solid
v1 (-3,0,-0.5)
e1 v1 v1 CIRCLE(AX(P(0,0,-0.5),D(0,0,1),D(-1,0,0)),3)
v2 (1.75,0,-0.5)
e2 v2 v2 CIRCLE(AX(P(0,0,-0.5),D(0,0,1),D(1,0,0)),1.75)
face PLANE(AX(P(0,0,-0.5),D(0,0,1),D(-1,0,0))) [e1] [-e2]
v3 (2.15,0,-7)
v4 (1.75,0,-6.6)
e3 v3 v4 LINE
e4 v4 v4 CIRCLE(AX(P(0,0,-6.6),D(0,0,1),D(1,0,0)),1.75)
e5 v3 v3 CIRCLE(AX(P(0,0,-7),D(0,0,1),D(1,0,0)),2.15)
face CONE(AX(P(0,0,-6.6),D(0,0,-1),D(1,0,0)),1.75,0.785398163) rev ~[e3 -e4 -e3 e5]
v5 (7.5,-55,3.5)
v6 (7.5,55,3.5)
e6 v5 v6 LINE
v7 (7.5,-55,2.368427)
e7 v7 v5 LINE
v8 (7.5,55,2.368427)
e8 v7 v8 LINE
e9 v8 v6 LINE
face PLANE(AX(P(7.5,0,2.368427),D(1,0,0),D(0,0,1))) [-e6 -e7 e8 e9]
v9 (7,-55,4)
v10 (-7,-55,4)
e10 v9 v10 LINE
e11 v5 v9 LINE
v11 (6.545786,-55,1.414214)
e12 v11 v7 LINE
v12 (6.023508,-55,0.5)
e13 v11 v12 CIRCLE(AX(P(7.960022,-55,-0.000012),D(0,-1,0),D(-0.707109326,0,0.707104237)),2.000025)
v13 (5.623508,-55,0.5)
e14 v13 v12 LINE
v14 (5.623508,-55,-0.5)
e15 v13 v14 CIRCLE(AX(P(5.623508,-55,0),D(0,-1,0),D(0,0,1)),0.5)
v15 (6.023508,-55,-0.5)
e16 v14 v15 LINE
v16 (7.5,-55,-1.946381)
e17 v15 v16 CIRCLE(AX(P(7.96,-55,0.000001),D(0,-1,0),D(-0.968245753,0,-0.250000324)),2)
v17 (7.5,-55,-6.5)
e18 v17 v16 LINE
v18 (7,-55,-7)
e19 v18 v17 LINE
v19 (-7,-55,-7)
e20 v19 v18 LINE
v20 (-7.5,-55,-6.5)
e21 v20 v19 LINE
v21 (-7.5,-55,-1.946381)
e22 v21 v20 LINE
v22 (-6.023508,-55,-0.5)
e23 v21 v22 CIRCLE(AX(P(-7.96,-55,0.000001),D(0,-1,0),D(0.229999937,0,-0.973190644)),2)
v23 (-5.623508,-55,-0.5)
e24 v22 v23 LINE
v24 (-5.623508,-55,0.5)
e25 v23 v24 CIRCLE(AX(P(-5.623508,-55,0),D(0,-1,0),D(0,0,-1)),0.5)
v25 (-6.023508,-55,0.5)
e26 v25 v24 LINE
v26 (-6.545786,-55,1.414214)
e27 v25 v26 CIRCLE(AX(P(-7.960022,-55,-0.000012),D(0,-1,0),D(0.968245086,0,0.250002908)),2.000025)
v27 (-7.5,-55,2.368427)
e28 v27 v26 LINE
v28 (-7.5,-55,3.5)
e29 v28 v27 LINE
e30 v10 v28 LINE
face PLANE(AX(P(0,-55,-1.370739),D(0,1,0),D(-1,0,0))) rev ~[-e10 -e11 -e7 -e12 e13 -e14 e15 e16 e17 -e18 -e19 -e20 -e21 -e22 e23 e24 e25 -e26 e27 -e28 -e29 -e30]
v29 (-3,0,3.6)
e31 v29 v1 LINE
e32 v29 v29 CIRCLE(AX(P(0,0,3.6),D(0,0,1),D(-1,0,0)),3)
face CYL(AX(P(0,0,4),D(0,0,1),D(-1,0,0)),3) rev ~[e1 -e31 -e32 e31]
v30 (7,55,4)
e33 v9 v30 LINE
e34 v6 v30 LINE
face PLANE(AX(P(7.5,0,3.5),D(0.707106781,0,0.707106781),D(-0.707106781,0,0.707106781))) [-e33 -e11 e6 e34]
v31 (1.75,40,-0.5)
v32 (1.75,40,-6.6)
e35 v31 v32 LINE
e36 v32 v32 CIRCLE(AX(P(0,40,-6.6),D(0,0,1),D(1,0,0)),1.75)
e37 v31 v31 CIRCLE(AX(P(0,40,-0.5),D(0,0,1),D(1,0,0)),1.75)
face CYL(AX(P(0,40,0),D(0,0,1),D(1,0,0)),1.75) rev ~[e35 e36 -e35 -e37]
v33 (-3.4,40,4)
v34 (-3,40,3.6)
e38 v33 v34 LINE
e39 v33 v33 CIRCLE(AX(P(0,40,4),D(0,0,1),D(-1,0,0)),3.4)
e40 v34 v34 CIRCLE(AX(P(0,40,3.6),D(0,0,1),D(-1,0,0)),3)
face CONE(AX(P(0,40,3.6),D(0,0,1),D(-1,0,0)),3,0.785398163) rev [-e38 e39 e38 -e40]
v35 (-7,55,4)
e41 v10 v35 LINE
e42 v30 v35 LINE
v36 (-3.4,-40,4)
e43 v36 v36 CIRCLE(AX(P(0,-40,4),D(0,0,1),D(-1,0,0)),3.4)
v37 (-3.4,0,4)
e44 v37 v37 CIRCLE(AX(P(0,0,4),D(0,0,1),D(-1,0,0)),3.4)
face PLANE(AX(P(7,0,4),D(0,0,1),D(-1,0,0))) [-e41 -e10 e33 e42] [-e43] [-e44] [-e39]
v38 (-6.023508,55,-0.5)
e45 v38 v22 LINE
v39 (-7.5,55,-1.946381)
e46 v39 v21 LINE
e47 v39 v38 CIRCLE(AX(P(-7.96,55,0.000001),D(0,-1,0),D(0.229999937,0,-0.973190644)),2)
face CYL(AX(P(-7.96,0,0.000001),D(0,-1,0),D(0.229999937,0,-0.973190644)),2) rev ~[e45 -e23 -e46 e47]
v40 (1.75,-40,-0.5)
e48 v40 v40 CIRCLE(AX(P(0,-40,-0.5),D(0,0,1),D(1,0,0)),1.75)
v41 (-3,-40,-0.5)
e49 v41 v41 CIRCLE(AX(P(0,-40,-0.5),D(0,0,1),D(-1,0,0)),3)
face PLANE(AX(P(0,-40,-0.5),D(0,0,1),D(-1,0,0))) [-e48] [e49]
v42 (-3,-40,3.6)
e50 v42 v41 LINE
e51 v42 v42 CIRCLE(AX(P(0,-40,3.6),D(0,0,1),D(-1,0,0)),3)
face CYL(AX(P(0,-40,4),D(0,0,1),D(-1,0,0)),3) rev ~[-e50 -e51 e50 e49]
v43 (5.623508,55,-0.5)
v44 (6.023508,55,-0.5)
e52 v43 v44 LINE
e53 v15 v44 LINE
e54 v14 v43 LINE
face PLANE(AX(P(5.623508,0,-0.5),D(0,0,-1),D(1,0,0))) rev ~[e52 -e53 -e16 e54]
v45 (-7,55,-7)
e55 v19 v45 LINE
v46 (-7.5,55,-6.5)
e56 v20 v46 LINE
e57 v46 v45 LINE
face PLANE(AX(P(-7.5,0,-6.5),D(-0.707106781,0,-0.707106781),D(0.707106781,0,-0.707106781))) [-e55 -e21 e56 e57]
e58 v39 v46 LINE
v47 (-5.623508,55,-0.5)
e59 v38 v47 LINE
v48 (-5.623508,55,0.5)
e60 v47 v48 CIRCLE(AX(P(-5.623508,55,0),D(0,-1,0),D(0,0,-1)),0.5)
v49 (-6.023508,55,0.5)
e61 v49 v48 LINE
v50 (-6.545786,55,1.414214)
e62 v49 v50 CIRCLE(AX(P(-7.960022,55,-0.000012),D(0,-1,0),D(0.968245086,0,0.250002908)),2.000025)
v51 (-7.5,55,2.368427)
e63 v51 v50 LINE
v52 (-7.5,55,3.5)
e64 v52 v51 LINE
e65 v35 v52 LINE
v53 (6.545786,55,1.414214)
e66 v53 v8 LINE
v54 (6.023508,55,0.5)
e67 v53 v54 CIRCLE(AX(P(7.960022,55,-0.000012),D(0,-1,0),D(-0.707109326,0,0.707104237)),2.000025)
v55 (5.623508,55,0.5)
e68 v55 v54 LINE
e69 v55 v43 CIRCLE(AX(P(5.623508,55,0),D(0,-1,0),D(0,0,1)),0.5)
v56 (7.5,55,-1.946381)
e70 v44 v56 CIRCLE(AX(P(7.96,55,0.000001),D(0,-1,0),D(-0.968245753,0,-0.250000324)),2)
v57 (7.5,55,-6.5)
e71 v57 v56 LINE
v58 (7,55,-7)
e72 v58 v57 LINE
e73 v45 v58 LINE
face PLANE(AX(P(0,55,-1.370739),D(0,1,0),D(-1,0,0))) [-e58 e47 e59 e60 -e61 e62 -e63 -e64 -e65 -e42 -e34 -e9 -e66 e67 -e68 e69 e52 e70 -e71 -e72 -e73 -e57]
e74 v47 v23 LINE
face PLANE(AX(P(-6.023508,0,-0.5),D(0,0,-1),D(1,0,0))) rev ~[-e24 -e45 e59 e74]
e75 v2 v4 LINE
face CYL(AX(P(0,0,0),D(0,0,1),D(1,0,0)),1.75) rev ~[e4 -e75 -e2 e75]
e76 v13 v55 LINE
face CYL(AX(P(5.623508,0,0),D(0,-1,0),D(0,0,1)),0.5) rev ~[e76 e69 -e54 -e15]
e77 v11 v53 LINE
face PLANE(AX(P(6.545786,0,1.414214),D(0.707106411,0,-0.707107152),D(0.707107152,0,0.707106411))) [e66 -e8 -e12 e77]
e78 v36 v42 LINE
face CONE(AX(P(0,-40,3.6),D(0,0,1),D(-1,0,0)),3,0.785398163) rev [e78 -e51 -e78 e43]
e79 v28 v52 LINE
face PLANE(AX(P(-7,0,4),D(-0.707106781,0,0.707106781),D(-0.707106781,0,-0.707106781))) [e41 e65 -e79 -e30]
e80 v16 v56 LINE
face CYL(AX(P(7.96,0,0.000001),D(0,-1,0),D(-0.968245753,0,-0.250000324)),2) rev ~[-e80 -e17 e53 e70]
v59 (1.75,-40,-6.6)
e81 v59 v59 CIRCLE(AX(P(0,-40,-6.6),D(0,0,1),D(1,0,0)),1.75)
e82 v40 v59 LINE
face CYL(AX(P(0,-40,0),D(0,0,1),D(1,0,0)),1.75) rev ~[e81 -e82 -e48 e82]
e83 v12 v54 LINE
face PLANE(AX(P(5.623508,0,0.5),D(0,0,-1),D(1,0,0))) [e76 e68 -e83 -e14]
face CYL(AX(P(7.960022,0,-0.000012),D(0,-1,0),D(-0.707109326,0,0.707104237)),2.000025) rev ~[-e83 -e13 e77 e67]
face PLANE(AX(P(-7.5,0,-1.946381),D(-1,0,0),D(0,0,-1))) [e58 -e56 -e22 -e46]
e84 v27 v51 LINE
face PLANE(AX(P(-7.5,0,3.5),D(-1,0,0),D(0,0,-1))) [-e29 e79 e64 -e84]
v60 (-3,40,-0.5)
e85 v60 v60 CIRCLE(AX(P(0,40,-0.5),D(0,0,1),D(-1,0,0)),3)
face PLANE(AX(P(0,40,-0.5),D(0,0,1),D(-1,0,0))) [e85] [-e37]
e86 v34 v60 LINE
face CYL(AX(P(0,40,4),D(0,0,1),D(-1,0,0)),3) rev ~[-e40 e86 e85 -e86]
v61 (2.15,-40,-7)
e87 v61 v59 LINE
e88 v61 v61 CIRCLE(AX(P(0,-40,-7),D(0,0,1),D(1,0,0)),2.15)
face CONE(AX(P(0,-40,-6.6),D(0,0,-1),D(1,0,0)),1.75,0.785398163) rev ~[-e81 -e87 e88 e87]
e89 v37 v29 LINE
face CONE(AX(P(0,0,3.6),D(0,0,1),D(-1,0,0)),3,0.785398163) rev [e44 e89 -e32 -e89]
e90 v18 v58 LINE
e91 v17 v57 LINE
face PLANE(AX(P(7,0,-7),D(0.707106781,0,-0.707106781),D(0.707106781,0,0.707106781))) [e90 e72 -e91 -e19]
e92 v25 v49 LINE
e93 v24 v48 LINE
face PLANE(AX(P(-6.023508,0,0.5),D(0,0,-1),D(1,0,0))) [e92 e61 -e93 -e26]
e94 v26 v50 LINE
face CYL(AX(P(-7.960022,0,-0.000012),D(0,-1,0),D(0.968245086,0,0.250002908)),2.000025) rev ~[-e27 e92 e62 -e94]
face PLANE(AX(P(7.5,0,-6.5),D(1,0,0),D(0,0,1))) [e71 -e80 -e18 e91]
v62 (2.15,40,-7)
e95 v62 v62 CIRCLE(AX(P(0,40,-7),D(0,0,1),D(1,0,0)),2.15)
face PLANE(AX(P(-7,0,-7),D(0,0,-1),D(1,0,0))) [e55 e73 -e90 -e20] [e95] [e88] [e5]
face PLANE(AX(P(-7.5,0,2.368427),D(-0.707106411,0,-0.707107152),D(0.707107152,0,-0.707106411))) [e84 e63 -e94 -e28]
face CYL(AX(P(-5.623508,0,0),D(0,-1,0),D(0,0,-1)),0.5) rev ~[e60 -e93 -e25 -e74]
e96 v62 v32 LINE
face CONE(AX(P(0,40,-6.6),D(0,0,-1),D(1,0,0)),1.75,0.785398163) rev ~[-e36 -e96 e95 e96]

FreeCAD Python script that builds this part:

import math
import FreeCAD as App
import Part
import Sketcher

V = App.Vector


def edges_at(feature, points):
    """Names of the edges that pass closest to the given points."""
    edges = feature.Shape.Edges
    near = lambda p: min(range(len(edges)), key=lambda i: edges[i].distToShape(Part.Vertex(*p))[0])
    return sorted({f"Edge{near(p) + 1}" for p in points})

doc = App.newDocument("Part")
body = doc.addObject("PartDesign::Body", "Body")

# Sketch on XZ plane
sketch1 = body.newObject("Sketcher::SketchObject", "Sketch")
sketch1.AttachmentSupport = (doc.getObject("XZ_Plane"), [""])
sketch1.MapMode = "FlatFace"
sketch1.addGeometry([
    Part.ArcOfCircle(Part.Circle(V(-5.62, 0, 0), V(0, 0, 1), 0.5), math.radians(-90), math.radians(90)),  # 0
    Part.LineSegment(V(-5.62, -0.5, 0), V(-6.02, -0.5, 0)),  # 1
    Part.ArcOfCircle(Part.Circle(V(-7.96, 0, 0), V(0, 0, 1), 2), math.radians(-77), math.radians(-14)),  # 2
    Part.LineSegment(V(-7.5, -1.95, 0), V(-7.5, -6.5, 0)),  # 3
    Part.LineSegment(V(-7.5, -6.5, 0), V(-7, -7, 0)),  # 4
    Part.LineSegment(V(-7, -7, 0), V(7, -7, 0)),  # 5
    Part.LineSegment(V(7, -7, 0), V(7.5, -6.5, 0)),  # 6
    Part.LineSegment(V(7.5, -6.5, 0), V(7.5, -1.95, 0)),  # 7
    Part.ArcOfCircle(Part.Circle(V(7.96, 0, 0), V(0, 0, 1), 2), math.radians(-166), math.radians(-103)),  # 8
    Part.LineSegment(V(6.02, -0.5, 0), V(5.62, -0.5, 0)),  # 9
    Part.ArcOfCircle(Part.Circle(V(5.62, 0, 0), V(0, 0, 1), 0.5), math.radians(90), math.radians(270)),  # 10
    Part.LineSegment(V(5.62, 0.5, 0), V(6.02, 0.5, 0)),  # 11
    Part.ArcOfCircle(Part.Circle(V(7.96, 0, 0), V(0, 0, 1), 2), math.radians(135), math.radians(166)),  # 12
    Part.LineSegment(V(6.55, 1.41, 0), V(7.5, 2.37, 0)),  # 13
    Part.LineSegment(V(7.5, 2.37, 0), V(7.5, 3.5, 0)),  # 14
    Part.LineSegment(V(7.5, 3.5, 0), V(7, 4, 0)),  # 15
    Part.LineSegment(V(7, 4, 0), V(-7, 4, 0)),  # 16
    Part.LineSegment(V(-7, 4, 0), V(-7.5, 3.5, 0)),  # 17
    Part.LineSegment(V(-7.5, 3.5, 0), V(-7.5, 2.37, 0)),  # 18
    Part.LineSegment(V(-7.5, 2.37, 0), V(-6.55, 1.41, 0)),  # 19
    Part.ArcOfCircle(Part.Circle(V(-7.96, 0, 0), V(0, 0, 1), 2), math.radians(14), math.radians(45)),  # 20
    Part.LineSegment(V(-6.02, 0.5, 0), V(-5.62, 0.5, 0)),  # 21
], False)
sketch1.addConstraint([
    Sketcher.Constraint("Tangent", 0, 1, 1, 1),
    Sketcher.Constraint("Coincident", 1, 2, 2, 2),
    Sketcher.Constraint("Coincident", 2, 1, 3, 1),
    Sketcher.Constraint("Coincident", 3, 2, 4, 1),
    Sketcher.Constraint("Coincident", 4, 2, 5, 1),
    Sketcher.Constraint("Coincident", 5, 2, 6, 1),
    Sketcher.Constraint("Coincident", 6, 2, 7, 1),
    Sketcher.Constraint("Coincident", 7, 2, 8, 2),
    Sketcher.Constraint("Coincident", 8, 1, 9, 1),
    Sketcher.Constraint("Tangent", 9, 2, 10, 2),
    Sketcher.Constraint("Tangent", 10, 1, 11, 1),
    Sketcher.Constraint("Coincident", 11, 2, 12, 2),
    Sketcher.Constraint("Coincident", 12, 1, 13, 1),
    Sketcher.Constraint("Coincident", 13, 2, 14, 1),
    Sketcher.Constraint("Coincident", 14, 2, 15, 1),
    Sketcher.Constraint("Coincident", 15, 2, 16, 1),
    Sketcher.Constraint("Coincident", 16, 2, 17, 1),
    Sketcher.Constraint("Coincident", 17, 2, 18, 1),
    Sketcher.Constraint("Coincident", 18, 2, 19, 1),
    Sketcher.Constraint("Coincident", 19, 2, 20, 2),
    Sketcher.Constraint("Coincident", 20, 1, 21, 1),
    Sketcher.Constraint("Tangent", 21, 2, 0, 2),
    Sketcher.Constraint("Horizontal", 1),
    Sketcher.Constraint("Vertical", 3),
    Sketcher.Constraint("Horizontal", 5),
    Sketcher.Constraint("Vertical", 7),
    Sketcher.Constraint("Horizontal", 9),
    Sketcher.Constraint("Horizontal", 11),
    Sketcher.Constraint("Vertical", 14),
    Sketcher.Constraint("Horizontal", 16),
    Sketcher.Constraint("Vertical", 18),
    Sketcher.Constraint("Horizontal", 21),
    Sketcher.Constraint("Equal", 2, 8),
    Sketcher.Constraint("Equal", 0, 10),
    Sketcher.Constraint("Equal", 12, 20),
    Sketcher.Constraint("Symmetric", 2, 3, 8, 3, -1, 1),
    Sketcher.Constraint("Symmetric", 0, 3, 10, 3, -1, 1),
    Sketcher.Constraint("Symmetric", 12, 3, 20, 3, -2),
    Sketcher.Constraint("Symmetric", 3, 2, 6, 2, -2),
    Sketcher.Constraint("Symmetric", 1, 2, 8, 1, -2),
    Sketcher.Constraint("Symmetric", 14, 2, 17, 2, -2),
    Sketcher.Constraint("Perpendicular", 4, 6),
    Sketcher.Constraint("Parallel", 6, 13),
    Sketcher.Constraint("Perpendicular", 13, 15),
    Sketcher.Constraint("Perpendicular", 15, 17),
    Sketcher.Constraint("Perpendicular", 17, 19),
    Sketcher.Constraint("Horizontal", 13, 2, 18, 2),
    Sketcher.Constraint("Horizontal", 12, 1, 19, 2),
    Sketcher.Constraint("Vertical", 8, 1, 11, 2),
    Sketcher.Constraint("Vertical", 7, 2, 13, 2),
    Sketcher.Constraint("Vertical", 5, 2, 15, 2),
    Sketcher.Constraint("Radius", 2, 2.0),
    Sketcher.Constraint("Radius", 0, 0.5),
    Sketcher.Constraint("DistanceX", 5, 1, 5, 2, 14.0),
    Sketcher.Constraint("DistanceX", 1, 2, 1, 1, 0.4),
    Sketcher.Constraint("DistanceY", 4, 2, -1, 1, 7.0),
    Sketcher.Constraint("DistanceY", -1, 1, 15, 2, 4.0),
    Sketcher.Constraint("DistanceY", 3, 2, 1, 2, 6.0),
    Sketcher.Constraint("DistanceX", 2, 3, -1, 1, 7.96),
    Sketcher.Constraint("Radius", 12, 2.000025),
    Sketcher.Constraint("Distance", 13, 1.349462),
    Sketcher.Constraint("DistanceY", 14, 1, 14, 2, 1.131573),
])
pad1 = body.newObject("PartDesign::Pad", "Pad")
pad1.Profile = sketch1
pad1.Length = 110
pad1.Midplane = True

# Sketch on XY plane
sketch2 = body.newObject("Sketcher::SketchObject", "Sketch001")
sketch2.AttachmentSupport = (doc.getObject("XY_Plane"), [""])
sketch2.MapMode = "FlatFace"
sketch2.addGeometry([
    Part.Circle(V(0, -40, 0), V(0, 0, 1), 1.8),
    Part.Circle(V(0, 0, 0), V(0, 0, 1), 1.8),
    Part.Circle(V(0, 40, 0), V(0, 0, 1), 1.8),
], False)
sketch2.addConstraint([
    Sketcher.Constraint("Coincident", 1, 3, -1, 1),
    Sketcher.Constraint("Equal", 0, 1),
    Sketcher.Constraint("Equal", 1, 2),
    Sketcher.Constraint("Symmetric", 0, 3, 2, 3, -1, 1),
    Sketcher.Constraint("PointOnObject", 0, 3, -2),
    Sketcher.Constraint("Diameter", 0, 3.5),
    Sketcher.Constraint("DistanceY", 0, 3, -1, 1, 40.0),
])
pocket1 = body.newObject("PartDesign::Pocket", "Pocket")
pocket1.Profile = sketch2
pocket1.Type = "ThroughAll"
pocket1.Midplane = True

# Sketch on XY plane
sketch3 = body.newObject("Sketcher::SketchObject", "Sketch002")
sketch3.AttachmentSupport = (doc.getObject("XY_Plane"), [""])
sketch3.MapMode = "FlatFace"
sketch3.AttachmentOffset = App.Placement(V(0, 0, 4), App.Rotation())
sketch3.addGeometry([
    Part.Circle(V(0, -40, 0), V(0, 0, 1), 3),
    Part.Circle(V(0, 0, 0), V(0, 0, 1), 3),
    Part.Circle(V(0, 40, 0), V(0, 0, 1), 3),
], False)
sketch3.addConstraint([
    Sketcher.Constraint("Coincident", 1, 3, -1, 1),
    Sketcher.Constraint("Equal", 0, 1),
    Sketcher.Constraint("Equal", 1, 2),
    Sketcher.Constraint("Symmetric", 0, 3, 2, 3, -1, 1),
    Sketcher.Constraint("PointOnObject", 0, 3, -2),
    Sketcher.Constraint("Diameter", 0, 6.0),
    Sketcher.Constraint("DistanceY", 0, 3, -1, 1, 40.0),
])
pocket2 = body.newObject("PartDesign::Pocket", "Pocket001")
pocket2.Profile = sketch3
pocket2.Length = 4.5
doc.recompute()

chamfer = body.newObject("PartDesign::Chamfer", "Chamfer")
chamfer.Base = (pocket2, edges_at(pocket2, [
    (-1.75, -40, -7),
    (-1.75, 0, -7),
    (-1.75, 40, -7),
    (3, 40, 4),
    (3, 0, 4),
    (3, -40, 4),
]))
chamfer.Size = 0.4

doc.recompute()
